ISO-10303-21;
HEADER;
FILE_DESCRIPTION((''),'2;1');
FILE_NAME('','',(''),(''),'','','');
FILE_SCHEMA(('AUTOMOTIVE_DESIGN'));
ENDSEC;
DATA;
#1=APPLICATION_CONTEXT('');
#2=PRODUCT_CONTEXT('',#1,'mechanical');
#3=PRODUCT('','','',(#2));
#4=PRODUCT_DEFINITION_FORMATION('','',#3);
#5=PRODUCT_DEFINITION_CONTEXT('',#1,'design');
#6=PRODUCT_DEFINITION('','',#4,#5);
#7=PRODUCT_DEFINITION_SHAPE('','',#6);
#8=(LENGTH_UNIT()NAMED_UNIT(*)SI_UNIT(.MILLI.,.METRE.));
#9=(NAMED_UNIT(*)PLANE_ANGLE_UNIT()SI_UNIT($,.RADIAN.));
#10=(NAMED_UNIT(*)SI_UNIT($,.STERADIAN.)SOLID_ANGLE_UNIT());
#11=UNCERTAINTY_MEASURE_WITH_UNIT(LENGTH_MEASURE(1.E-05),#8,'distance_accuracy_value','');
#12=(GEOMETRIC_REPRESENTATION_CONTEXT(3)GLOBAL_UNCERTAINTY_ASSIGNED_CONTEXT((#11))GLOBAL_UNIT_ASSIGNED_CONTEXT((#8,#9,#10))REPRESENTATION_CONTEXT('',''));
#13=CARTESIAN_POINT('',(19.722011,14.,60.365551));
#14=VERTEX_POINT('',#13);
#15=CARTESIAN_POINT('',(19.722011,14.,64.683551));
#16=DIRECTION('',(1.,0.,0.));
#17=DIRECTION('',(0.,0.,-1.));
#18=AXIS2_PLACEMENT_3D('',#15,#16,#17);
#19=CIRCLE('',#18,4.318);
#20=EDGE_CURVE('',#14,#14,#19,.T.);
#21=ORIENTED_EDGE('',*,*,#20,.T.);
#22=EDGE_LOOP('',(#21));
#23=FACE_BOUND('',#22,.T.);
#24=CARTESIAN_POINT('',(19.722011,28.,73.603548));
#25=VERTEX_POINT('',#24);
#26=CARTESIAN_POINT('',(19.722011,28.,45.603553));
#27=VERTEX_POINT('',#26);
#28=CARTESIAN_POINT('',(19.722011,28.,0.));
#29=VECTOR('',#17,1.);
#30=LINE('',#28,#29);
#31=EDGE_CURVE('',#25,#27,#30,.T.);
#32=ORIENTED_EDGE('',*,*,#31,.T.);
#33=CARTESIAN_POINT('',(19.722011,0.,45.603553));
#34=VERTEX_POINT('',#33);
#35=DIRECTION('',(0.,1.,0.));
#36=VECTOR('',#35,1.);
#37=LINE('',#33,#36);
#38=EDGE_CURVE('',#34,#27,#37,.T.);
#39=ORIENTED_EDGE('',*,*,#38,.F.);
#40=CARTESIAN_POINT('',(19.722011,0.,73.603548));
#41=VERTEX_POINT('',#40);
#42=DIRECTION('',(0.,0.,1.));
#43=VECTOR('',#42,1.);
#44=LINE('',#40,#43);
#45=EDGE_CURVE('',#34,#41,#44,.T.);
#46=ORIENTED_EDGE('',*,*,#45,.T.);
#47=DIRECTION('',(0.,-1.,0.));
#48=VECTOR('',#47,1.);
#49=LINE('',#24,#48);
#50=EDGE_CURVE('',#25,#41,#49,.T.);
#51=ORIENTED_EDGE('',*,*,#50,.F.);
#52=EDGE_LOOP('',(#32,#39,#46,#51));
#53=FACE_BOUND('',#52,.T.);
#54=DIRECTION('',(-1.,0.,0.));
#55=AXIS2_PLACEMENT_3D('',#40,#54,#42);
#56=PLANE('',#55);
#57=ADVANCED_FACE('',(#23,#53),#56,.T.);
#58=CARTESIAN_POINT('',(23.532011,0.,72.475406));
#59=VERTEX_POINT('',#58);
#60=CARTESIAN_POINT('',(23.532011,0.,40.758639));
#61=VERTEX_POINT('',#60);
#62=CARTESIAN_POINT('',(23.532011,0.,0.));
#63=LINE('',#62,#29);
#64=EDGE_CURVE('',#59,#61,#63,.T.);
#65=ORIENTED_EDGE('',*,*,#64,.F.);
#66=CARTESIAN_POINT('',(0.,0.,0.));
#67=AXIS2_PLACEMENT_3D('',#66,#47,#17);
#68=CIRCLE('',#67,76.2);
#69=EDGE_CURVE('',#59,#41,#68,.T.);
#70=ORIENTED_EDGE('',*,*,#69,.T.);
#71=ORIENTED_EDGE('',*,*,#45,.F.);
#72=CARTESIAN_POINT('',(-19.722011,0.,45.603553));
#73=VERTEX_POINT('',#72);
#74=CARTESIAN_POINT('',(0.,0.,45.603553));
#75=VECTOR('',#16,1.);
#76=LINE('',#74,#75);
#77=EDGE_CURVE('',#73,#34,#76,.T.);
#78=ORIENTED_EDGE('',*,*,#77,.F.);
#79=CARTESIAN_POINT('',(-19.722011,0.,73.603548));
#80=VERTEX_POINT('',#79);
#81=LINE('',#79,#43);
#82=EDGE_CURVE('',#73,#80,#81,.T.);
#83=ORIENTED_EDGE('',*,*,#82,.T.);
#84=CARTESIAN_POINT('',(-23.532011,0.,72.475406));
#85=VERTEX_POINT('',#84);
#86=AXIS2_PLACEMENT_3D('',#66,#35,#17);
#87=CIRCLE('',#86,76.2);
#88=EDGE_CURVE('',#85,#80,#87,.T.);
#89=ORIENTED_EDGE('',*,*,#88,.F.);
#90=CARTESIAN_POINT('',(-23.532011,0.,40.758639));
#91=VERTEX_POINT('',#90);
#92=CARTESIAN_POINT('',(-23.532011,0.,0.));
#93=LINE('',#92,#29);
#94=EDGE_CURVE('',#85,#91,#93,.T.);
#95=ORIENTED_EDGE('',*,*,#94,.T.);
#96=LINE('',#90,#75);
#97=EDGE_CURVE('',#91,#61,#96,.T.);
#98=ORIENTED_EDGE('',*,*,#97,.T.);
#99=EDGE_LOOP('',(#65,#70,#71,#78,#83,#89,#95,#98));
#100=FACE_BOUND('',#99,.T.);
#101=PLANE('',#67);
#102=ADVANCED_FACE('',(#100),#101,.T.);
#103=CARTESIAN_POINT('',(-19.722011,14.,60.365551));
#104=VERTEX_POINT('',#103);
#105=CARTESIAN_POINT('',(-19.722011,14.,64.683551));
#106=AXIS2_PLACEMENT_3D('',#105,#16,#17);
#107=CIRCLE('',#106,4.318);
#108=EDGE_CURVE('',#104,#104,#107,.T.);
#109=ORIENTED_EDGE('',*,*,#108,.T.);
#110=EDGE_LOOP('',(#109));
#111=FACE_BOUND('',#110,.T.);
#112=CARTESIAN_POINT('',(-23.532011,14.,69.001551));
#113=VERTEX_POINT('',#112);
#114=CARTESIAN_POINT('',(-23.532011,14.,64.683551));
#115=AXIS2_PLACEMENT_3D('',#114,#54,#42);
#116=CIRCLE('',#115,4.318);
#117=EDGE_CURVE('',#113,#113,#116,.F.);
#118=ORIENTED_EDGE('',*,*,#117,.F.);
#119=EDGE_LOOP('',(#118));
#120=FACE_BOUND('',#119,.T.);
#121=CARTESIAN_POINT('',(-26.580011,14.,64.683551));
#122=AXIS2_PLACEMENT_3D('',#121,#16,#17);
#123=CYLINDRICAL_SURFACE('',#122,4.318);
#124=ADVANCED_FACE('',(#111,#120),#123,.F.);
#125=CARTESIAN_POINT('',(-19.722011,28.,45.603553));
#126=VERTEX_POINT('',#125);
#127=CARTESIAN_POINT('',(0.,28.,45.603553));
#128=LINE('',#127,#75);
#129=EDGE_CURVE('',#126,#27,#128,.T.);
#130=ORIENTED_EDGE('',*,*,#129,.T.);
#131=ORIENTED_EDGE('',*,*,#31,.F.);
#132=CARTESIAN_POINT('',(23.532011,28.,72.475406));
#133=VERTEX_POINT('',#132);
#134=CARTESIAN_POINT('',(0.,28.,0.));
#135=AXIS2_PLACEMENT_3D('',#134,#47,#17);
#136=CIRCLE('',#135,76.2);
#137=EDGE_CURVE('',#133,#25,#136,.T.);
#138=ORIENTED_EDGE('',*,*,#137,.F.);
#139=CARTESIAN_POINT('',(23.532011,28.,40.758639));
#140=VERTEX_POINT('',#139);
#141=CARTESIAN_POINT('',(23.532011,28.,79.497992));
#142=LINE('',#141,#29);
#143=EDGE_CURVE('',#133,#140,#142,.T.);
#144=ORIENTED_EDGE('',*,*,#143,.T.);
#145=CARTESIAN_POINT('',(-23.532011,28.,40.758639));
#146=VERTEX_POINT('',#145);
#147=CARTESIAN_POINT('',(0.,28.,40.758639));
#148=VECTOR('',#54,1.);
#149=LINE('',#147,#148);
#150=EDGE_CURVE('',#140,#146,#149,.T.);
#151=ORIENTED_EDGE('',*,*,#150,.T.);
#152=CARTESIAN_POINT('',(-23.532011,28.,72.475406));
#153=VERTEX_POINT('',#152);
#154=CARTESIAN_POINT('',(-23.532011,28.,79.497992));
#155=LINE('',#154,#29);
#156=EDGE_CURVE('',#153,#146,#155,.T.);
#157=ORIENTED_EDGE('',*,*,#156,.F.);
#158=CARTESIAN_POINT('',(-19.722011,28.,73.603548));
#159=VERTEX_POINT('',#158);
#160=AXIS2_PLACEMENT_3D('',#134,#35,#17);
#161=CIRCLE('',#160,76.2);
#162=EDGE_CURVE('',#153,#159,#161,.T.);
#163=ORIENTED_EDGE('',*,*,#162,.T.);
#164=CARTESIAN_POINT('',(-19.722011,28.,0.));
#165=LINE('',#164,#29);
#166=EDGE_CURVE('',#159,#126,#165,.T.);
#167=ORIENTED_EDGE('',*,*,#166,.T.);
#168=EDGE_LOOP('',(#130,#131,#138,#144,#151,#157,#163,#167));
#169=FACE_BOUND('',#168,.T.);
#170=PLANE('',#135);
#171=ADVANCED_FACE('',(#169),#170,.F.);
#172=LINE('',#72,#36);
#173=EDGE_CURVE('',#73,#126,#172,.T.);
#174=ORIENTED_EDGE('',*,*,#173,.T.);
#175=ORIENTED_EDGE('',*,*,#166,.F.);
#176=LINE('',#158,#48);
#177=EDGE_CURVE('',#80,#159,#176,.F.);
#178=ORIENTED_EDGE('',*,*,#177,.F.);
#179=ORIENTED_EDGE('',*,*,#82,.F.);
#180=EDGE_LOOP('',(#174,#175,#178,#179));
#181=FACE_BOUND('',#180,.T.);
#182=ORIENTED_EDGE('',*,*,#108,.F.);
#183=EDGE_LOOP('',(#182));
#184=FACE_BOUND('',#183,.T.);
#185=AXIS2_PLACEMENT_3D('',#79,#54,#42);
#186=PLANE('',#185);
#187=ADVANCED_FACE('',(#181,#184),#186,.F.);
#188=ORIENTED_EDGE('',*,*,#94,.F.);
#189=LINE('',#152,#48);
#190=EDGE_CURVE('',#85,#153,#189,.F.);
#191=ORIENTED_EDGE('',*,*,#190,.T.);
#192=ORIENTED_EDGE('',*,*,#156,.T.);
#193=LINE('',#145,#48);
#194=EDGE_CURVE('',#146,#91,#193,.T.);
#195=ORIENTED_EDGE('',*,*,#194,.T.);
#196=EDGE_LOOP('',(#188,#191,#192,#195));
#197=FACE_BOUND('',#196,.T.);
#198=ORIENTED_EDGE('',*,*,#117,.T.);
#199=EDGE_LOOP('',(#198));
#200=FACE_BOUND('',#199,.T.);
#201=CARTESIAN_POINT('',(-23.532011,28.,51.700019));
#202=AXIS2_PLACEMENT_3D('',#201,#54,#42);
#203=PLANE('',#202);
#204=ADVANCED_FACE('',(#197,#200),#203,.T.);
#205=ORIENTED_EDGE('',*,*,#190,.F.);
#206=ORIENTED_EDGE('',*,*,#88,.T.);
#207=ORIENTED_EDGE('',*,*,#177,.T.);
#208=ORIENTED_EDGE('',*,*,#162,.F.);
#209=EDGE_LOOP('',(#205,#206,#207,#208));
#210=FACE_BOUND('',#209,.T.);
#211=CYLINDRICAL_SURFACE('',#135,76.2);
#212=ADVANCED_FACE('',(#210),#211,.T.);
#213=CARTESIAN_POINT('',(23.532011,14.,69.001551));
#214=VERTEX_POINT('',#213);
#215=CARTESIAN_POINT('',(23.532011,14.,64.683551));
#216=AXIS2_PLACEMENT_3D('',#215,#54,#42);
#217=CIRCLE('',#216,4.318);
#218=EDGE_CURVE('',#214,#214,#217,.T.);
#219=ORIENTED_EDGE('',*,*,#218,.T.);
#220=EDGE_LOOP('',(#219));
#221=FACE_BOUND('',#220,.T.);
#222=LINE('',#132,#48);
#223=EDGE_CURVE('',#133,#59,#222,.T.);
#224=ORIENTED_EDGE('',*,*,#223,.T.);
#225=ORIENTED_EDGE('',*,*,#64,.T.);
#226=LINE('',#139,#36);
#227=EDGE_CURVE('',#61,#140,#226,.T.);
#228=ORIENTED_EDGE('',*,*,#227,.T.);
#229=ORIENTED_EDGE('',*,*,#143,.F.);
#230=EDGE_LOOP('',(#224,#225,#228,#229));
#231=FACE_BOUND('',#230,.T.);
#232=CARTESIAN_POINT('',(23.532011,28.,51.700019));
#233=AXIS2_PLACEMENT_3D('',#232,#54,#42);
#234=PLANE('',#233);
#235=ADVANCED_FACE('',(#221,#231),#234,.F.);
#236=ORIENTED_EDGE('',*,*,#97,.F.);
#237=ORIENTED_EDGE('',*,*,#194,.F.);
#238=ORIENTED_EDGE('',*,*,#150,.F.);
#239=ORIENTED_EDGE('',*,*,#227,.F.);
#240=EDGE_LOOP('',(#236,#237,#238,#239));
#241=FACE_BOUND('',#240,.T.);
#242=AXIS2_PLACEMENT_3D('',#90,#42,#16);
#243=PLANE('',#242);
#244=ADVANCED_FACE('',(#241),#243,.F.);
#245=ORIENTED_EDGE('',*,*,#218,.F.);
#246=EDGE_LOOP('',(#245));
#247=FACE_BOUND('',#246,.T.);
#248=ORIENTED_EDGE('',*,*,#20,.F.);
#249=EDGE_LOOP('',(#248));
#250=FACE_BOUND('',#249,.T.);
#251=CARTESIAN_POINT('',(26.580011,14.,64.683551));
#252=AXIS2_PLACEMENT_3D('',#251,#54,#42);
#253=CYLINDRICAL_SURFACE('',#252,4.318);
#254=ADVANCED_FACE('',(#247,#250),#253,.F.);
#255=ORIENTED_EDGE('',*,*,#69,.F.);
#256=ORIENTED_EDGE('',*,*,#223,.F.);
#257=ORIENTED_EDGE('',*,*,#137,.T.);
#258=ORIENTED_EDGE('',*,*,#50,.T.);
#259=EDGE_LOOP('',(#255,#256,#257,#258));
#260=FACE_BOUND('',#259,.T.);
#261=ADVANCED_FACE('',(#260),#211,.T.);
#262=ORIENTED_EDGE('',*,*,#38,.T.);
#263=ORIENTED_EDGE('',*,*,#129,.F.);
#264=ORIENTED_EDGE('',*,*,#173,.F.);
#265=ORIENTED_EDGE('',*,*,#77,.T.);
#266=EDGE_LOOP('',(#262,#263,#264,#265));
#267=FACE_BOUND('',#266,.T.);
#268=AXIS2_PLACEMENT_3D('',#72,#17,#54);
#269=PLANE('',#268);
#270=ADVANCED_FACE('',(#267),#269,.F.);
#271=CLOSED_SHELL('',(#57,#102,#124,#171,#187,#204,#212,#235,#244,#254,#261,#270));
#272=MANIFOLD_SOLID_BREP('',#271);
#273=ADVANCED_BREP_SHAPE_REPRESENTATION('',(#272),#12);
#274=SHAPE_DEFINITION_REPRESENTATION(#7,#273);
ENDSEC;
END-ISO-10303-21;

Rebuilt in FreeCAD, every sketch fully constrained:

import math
import FreeCAD as App
import Part
import Sketcher

V = App.Vector
Q = App.Units.Quantity


def add_polygon(sketch, points):
    """Adds a closed chain of lines whose ends are joined by coincident constraints."""
    first, n = sketch.GeometryCount, len(points)
    for a, b in zip(points, points[1:] + points[:1]):
        sketch.addGeometry(Part.LineSegment(App.Vector(*a, 0), App.Vector(*b, 0)), False)
    for i in range(n):
        sketch.addConstraint(Sketcher.Constraint("Coincident", first + i, 2, first + (i + 1) % n, 1))

doc = App.newDocument("Part")
params = doc.addObject("Spreadsheet::Sheet", "Params")
for row, (alias, value) in enumerate([
    ("sketch1_radius", "3 in"),
    ("pad1_length", "28 mm"),
    ("pocket1_length", "181.354955 mm"),
    ("sketch3_diameter", "0.5 in"),
    ("pocket2_length", "0.18 in"),
    ("sketch4_diameter", "0.5 in"),
    ("sketch4_diameter2", "0.34 in"),
    ("pad2_length", "0.27 in"),
    ("sketch5_radius", "0.75 in"),
    ("pocket3_length", "91.021954 mm"),
    ("pocket4_length", "166.380508 mm"),
], start=1):
    params.set(f"A{row}", alias)
    params.set(f"B{row}", "=" + value)
    params.setAlias(f"B{row}", alias)

body = doc.addObject("PartDesign::Body", "Body")

sketch1 = body.newObject("Sketcher::SketchObject", "Sketch")
sketch1.AttachmentSupport = (doc.getObject("XZ_Plane"), [""])
sketch1.MapMode = "FlatFace"
sketch1.addGeometry(Part.LineSegment(V(0, 0, 0), V(-38, 66, 0)), False)
sketch1.addGeometry(Part.ArcOfCircle(Part.Circle(V(0, 0, 0), V(0, 0, 1), 76), math.radians(90), math.radians(120)), False)
sketch1.addGeometry(Part.LineSegment(V(0, 76, 0), V(0, 0, 0)), False)
sketch1.addConstraint(Sketcher.Constraint("Coincident", 0, 2, 1, 2))
sketch1.addConstraint(Sketcher.Constraint("Coincident", 1, 1, 2, 1))
sketch1.addConstraint(Sketcher.Constraint("Coincident", 2, 2, 0, 1))
sketch1.addConstraint(Sketcher.Constraint("Vertical", 2))
sketch1.addConstraint(Sketcher.Constraint("Coincident", 1, 3, -1, 1))
sketch1.addConstraint(Sketcher.Constraint("Coincident", 2, 2, -1, 1))
sketch1.addConstraint(Sketcher.Constraint("Radius", 1, Q("3 in")))
sketch1.addConstraint(Sketcher.Constraint("Angle", 0, Q("120 deg")))
sketch1.setExpression("Constraints[6]", "Params.sketch1_radius")
pad1 = body.newObject("PartDesign::Pad", "Pad")
pad1.Profile = sketch1
pad1.setExpression("Length", "Params.pad1_length")
pad1.Reversed = True

sketch2 = body.newObject("Sketcher::SketchObject", "Sketch001")
sketch2.AttachmentSupport = (doc.getObject("XZ_Plane"), [""])
sketch2.MapMode = "FlatFace"
sketch2.AttachmentOffset = App.Placement(V(0, 0, -28), App.Rotation())
add_polygon(sketch2, [(-20, 46), (-20, 89), (20, 89), (20, 46)])
sketch2.addConstraint(Sketcher.Constraint("Vertical", 0))
sketch2.addConstraint(Sketcher.Constraint("Horizontal", 1))
sketch2.addConstraint(Sketcher.Constraint("Vertical", 2))
sketch2.addConstraint(Sketcher.Constraint("Horizontal", 3))
sketch2.addConstraint(Sketcher.Constraint("DistanceY", 0, 1, 0, 2, 43.47986))
sketch2.addConstraint(Sketcher.Constraint("DistanceX", 1, 1, 1, 2, 39.444022))
sketch2.addConstraint(Sketcher.Constraint("DistanceX", 0, 2, -1, 1, 19.722011))
sketch2.addConstraint(Sketcher.Constraint("DistanceY", -1, 1, 0, 2, 89.083413))
pocket1 = body.newObject("PartDesign::Pocket", "Pocket")
pocket1.Profile = sketch2
pocket1.setExpression("Length", "Params.pocket1_length")
pocket1.Midplane = True

sketch3 = body.newObject("Sketcher::SketchObject", "Sketch002")
sketch3.AttachmentSupport = (doc.getObject("YZ_Plane"), [""])
sketch3.MapMode = "FlatFace"
sketch3.AttachmentOffset = App.Placement(V(0, 0, -19.722011), App.Rotation())
sketch3.addGeometry(Part.Circle(V(14, 65, 0), V(0, 0, 1), 6), False)
sketch3.addConstraint(Sketcher.Constraint("Diameter", 0, Q("0.5 in")))
sketch3.addConstraint(Sketcher.Constraint("DistanceX", -1, 1, 0, 3, 14.0))
sketch3.addConstraint(Sketcher.Constraint("DistanceY", -1, 1, 0, 3, 64.683551))
sketch3.setExpression("Constraints[0]", "Params.sketch3_diameter")
pocket2 = body.newObject("PartDesign::Pocket", "Pocket001")
pocket2.Profile = sketch3
pocket2.setExpression("Length", "Params.pocket2_length")

sketch4 = body.newObject("Sketcher::SketchObject", "Sketch003")
sketch4.AttachmentSupport = (doc.getObject("YZ_Plane"), [""])
sketch4.MapMode = "FlatFace"
sketch4.AttachmentOffset = App.Placement(V(0, 0, -19.722011), App.Rotation())
sketch4.addGeometry(Part.Circle(V(14, 64.7, 0), V(0, 0, 1), 6.3), False)
sketch4.addGeometry(Part.Circle(V(14, 64.7, 0), V(0, 0, 1), 4.3), False)
sketch4.addConstraint(Sketcher.Constraint("Coincident", 1, 3, 0, 3))
sketch4.addConstraint(Sketcher.Constraint("Diameter", 0, Q("0.5 in")))
sketch4.addConstraint(Sketcher.Constraint("Diameter", 1, Q("0.34 in")))
sketch4.addConstraint(Sketcher.Constraint("DistanceX", -1, 1, 0, 3, 14.0))
sketch4.addConstraint(Sketcher.Constraint("DistanceY", -1, 1, 0, 3, 64.683551))
sketch4.setExpression("Constraints[1]", "Params.sketch4_diameter")
sketch4.setExpression("Constraints[2]", "Params.sketch4_diameter2")
pad2 = body.newObject("PartDesign::Pad", "Pad001")
pad2.Profile = sketch4
pad2.setExpression("Length", "Params.pad2_length")
pad2.Reversed = True

sketch5 = body.newObject("Sketcher::SketchObject", "Sketch004")
sketch5.AttachmentSupport = (doc.getObject("XZ_Plane"), [""])
sketch5.MapMode = "FlatFace"
sketch5.AttachmentOffset = App.Placement(V(0, 0, 0.1 * 25.4), App.Rotation())
add_polygon(sketch5, [(-59.8, 79.5), (-23.5, 79.5), (-23.5, 36.3), (-33, 46.2), (-59.8, 51.7)])
sketch5.addGeometry(Part.LineSegment(V(-6.6, 17.9, 0), V(-17.3, 36.3, 0)), False)
sketch5.addGeometry(Part.LineSegment(V(-17.3, 36.3, 0), V(-10.7, 40.1, 0)), False)
sketch5.addGeometry(Part.LineSegment(V(-10.7, 40.1, 0), V(-3.2, 40.1, 0)), False)
sketch5.addGeometry(Part.LineSegment(V(-3.2, 40.1, 0), V(-3.2, 18.8, 0)), False)
sketch5.addGeometry(Part.ArcOfCircle(Part.Circle(V(0, 0, 0), V(0, 0, 1), 19), math.radians(99.58), math.radians(110.42)), False)
sketch5.addConstraint(Sketcher.Constraint("Coincident", 5, 2, 6, 1))
sketch5.addConstraint(Sketcher.Constraint("Coincident", 6, 2, 7, 1))
sketch5.addConstraint(Sketcher.Constraint("Coincident", 7, 2, 8, 1))
sketch5.addConstraint(Sketcher.Constraint("Coincident", 8, 2, 9, 1))
sketch5.addConstraint(Sketcher.Constraint("Coincident", 9, 2, 5, 1))
sketch5.addConstraint(Sketcher.Constraint("Horizontal", 0))
sketch5.addConstraint(Sketcher.Constraint("Vertical", 1))
sketch5.addConstraint(Sketcher.Constraint("Vertical", 4))
sketch5.addConstraint(Sketcher.Constraint("Horizontal", 7))
sketch5.addConstraint(Sketcher.Constraint("Vertical", 8))
sketch5.addConstraint(Sketcher.Constraint("Coincident", 9, 3, -1, 1))
sketch5.addConstraint(Sketcher.Constraint("Perpendicular", 5, 6))
sketch5.addConstraint(Sketcher.Constraint("Horizontal", 1, 2, 5, 2))
sketch5.addConstraint(Sketcher.Constraint("Radius", 9, Q("0.75 in")))
sketch5.addConstraint(Sketcher.Constraint("Angle", 5, Q("120 deg")))
sketch5.addConstraint(Sketcher.Constraint("DistanceX", 0, 1, 0, 2, 36.221602))
sketch5.addConstraint(Sketcher.Constraint("DistanceY", 1, 2, 1, 1, 43.221341))
sketch5.addConstraint(Sketcher.Constraint("Distance", 3, 27.299848))
sketch5.addConstraint(Sketcher.Constraint("DistanceX", 7, 1, 7, 2, 7.563416))
sketch5.addConstraint(Sketcher.Constraint("DistanceY", 4, 1, 4, 2, 27.797973))
sketch5.addConstraint(Sketcher.Constraint("DistanceY", 8, 2, 8, 1, 21.273994))
sketch5.addConstraint(Sketcher.Constraint("DistanceX", 0, 2, -1, 1, 23.532011))
sketch5.addConstraint(Sketcher.Constraint("DistanceY", -1, 1, 1, 2, 36.276651))
sketch5.addConstraint(Sketcher.Constraint("DistanceY", -1, 1, 2, 2, 46.229329))
sketch5.addConstraint(Sketcher.Constraint("DistanceY", -1, 1, 6, 2, 40.05836))
sketch5.setExpression("Constraints[18]", "Params.sketch5_radius")
pocket3 = body.newObject("PartDesign::Pocket", "Pocket002")
pocket3.Profile = sketch5
pocket3.setExpression("Length", "Params.pocket3_length")

sketch6 = body.newObject("Sketcher::SketchObject", "Sketch005")
sketch6.AttachmentSupport = (doc.getObject("XZ_Plane"), [""])
sketch6.MapMode = "FlatFace"
sketch6.AttachmentOffset = App.Placement(V(0, 0, -28), App.Rotation())
add_polygon(sketch6, [(-24, -5), (-24, 41), (28, 41), (28, -5)])
sketch6.addConstraint(Sketcher.Constraint("Vertical", 0))
sketch6.addConstraint(Sketcher.Constraint("Horizontal", 1))
sketch6.addConstraint(Sketcher.Constraint("Vertical", 2))
sketch6.addConstraint(Sketcher.Constraint("Horizontal", 3))
sketch6.addConstraint(Sketcher.Constraint("DistanceX", 1, 1, 1, 2, 51.838761))
sketch6.addConstraint(Sketcher.Constraint("DistanceY", 0, 1, 0, 2, 46.114625))
sketch6.addConstraint(Sketcher.Constraint("DistanceX", 0, 2, -1, 1, 23.532011))
sketch6.addConstraint(Sketcher.Constraint("DistanceY", -1, 1, 0, 2, 40.758639))
pocket4 = body.newObject("PartDesign::Pocket", "Pocket003")
pocket4.Profile = sketch6
pocket4.setExpression("Length", "Params.pocket4_length")
pocket4.Midplane = True
doc.recompute()

mirrored = body.newObject("PartDesign::Mirrored", "Mirrored")
mirrored.Originals = [pad1, pocket1, pocket2, pad2, pocket3, pocket4]
mirrored.MirrorPlane = (doc.getObject("YZ_Plane"), [""])
body.Tip = mirrored

doc.recompute()
